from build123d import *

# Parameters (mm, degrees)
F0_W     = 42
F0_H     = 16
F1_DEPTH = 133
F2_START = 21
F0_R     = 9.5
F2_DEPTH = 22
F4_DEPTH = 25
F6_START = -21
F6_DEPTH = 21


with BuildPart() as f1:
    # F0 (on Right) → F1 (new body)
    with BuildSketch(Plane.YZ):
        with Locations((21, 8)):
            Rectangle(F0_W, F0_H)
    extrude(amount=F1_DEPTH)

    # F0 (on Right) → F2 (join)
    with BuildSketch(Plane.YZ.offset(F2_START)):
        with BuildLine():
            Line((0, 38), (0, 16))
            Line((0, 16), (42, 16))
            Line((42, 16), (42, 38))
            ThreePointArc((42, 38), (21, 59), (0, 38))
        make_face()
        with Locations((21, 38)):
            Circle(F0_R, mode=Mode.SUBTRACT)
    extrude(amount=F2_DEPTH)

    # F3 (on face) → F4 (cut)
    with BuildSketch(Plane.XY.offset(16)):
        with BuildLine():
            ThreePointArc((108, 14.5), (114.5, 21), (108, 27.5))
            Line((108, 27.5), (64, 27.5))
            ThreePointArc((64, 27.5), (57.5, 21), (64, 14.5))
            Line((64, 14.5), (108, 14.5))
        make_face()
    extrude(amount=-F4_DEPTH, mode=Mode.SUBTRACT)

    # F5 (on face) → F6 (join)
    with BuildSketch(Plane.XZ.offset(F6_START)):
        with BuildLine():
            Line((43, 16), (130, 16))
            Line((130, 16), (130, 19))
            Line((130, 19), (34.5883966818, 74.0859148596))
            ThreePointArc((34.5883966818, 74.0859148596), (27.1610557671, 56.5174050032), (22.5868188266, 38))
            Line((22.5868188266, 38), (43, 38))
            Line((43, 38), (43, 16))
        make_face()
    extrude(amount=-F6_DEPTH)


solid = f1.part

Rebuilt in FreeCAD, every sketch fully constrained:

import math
import FreeCAD as App
import Part
import Sketcher
from FreeCAD import Vector
Q = App.Units.Quantity

doc = App.newDocument("Part")
body = doc.addObject("PartDesign::Body", "Body")

sketch1 = doc.addObject("Sketcher::SketchObject", "Sketch")
body.addObject(sketch1)
sketch1.AttachmentSupport = (doc.YZ_Plane, [""])
sketch1.MapMode = "FlatFace"
sketch1.addGeometry(Part.LineSegment(Vector(0, 16, 0), Vector(0, 0, 0)), False)
sketch1.addGeometry(Part.LineSegment(Vector(0, 0, 0), Vector(42, 0, 0)), False)
sketch1.addGeometry(Part.LineSegment(Vector(42, 0, 0), Vector(42, 16, 0)), False)
sketch1.addGeometry(Part.LineSegment(Vector(42, 16, 0), Vector(0, 16, 0)), False)
sketch1.addConstraint(Sketcher.Constraint("Coincident", 0, 2, 1, 1))
sketch1.addConstraint(Sketcher.Constraint("Coincident", 1, 2, 2, 1))
sketch1.addConstraint(Sketcher.Constraint("Coincident", 2, 2, 3, 1))
sketch1.addConstraint(Sketcher.Constraint("Coincident", 3, 2, 0, 1))
sketch1.addConstraint(Sketcher.Constraint("Vertical", 0))
sketch1.addConstraint(Sketcher.Constraint("Horizontal", 1))
sketch1.addConstraint(Sketcher.Constraint("Vertical", 2))
sketch1.addConstraint(Sketcher.Constraint("Horizontal", 3))
sketch1.addConstraint(Sketcher.Constraint("Coincident", 0, 2, -1, 1))
sketch1.addConstraint(Sketcher.Constraint("DistanceX", 1, 1, 1, 2, 42.0))
sketch1.addConstraint(Sketcher.Constraint("DistanceY", 0, 2, 0, 1, 16.0))
pad1 = doc.addObject("PartDesign::Pad", "Pad")
body.addObject(pad1)
pad1.Profile = sketch1
pad1.Length = 133

sketch2 = doc.addObject("Sketcher::SketchObject", "Sketch001")
body.addObject(sketch2)
sketch2.AttachmentSupport = (doc.YZ_Plane, [""])
sketch2.MapMode = "FlatFace"
sketch2.AttachmentOffset = App.Placement(Vector(0, 0, 21), App.Rotation())
sketch2.addGeometry(Part.LineSegment(Vector(0, 38, 0), Vector(0, 16, 0)), False)
sketch2.addGeometry(Part.LineSegment(Vector(0, 16, 0), Vector(42, 16, 0)), False)
sketch2.addGeometry(Part.LineSegment(Vector(42, 16, 0), Vector(42, 38, 0)), False)
sketch2.addGeometry(Part.ArcOfCircle(Part.Circle(Vector(21, 38, 0), Vector(0, 0, 1), 21), math.radians(0), math.radians(180)), False)
sketch2.addGeometry(Part.Circle(Vector(21, 38, 0), Vector(0, 0, 1), 10), False)
sketch2.addConstraint(Sketcher.Constraint("Coincident", 0, 2, 1, 1))
sketch2.addConstraint(Sketcher.Constraint("Coincident", 1, 2, 2, 1))
sketch2.addConstraint(Sketcher.Constraint("Tangent", 2, 2, 3, 1))
sketch2.addConstraint(Sketcher.Constraint("Tangent", 3, 2, 0, 1))
sketch2.addConstraint(Sketcher.Constraint("Vertical", 0))
sketch2.addConstraint(Sketcher.Constraint("Horizontal", 1))
sketch2.addConstraint(Sketcher.Constraint("Vertical", 2))
sketch2.addConstraint(Sketcher.Constraint("Coincident", 4, 3, 3, 3))
sketch2.addConstraint(Sketcher.Constraint("PointOnObject", 0, 2, -2))
sketch2.addConstraint(Sketcher.Constraint("Diameter", 4, 19.0))
sketch2.addConstraint(Sketcher.Constraint("Radius", 3, 21.0))
sketch2.addConstraint(Sketcher.Constraint("DistanceY", 0, 2, 0, 1, 22.0))
sketch2.addConstraint(Sketcher.Constraint("DistanceY", -1, 1, 3, 3, 38.0))
pad2 = doc.addObject("PartDesign::Pad", "Pad001")
body.addObject(pad2)
pad2.Profile = sketch2
pad2.Length = 22

sketch3 = doc.addObject("Sketcher::SketchObject", "Sketch002")
body.addObject(sketch3)
sketch3.AttachmentSupport = (doc.XY_Plane, [""])
sketch3.MapMode = "FlatFace"
sketch3.AttachmentOffset = App.Placement(Vector(0, 0, 16), App.Rotation())
sketch3.addGeometry(Part.ArcOfCircle(Part.Circle(Vector(108, 21, 0), Vector(0, 0, 1), 6), math.radians(-90), math.radians(90)), False)
sketch3.addGeometry(Part.LineSegment(Vector(108, 28, 0), Vector(64, 28, 0)), False)
sketch3.addGeometry(Part.ArcOfCircle(Part.Circle(Vector(64, 21, 0), Vector(0, 0, 1), 6), math.radians(90), math.radians(270)), False)
sketch3.addGeometry(Part.LineSegment(Vector(64, 14, 0), Vector(108, 14, 0)), False)
sketch3.addConstraint(Sketcher.Constraint("Tangent", 0, 2, 1, 1))
sketch3.addConstraint(Sketcher.Constraint("Tangent", 1, 2, 2, 1))
sketch3.addConstraint(Sketcher.Constraint("Tangent", 2, 2, 3, 1))
sketch3.addConstraint(Sketcher.Constraint("Tangent", 3, 2, 0, 1))
sketch3.addConstraint(Sketcher.Constraint("Horizontal", 1))
sketch3.addConstraint(Sketcher.Constraint("Horizontal", 3))
sketch3.addConstraint(Sketcher.Constraint("Radius", 0, 6.5))
sketch3.addConstraint(Sketcher.Constraint("DistanceX", 1, 2, 1, 1, 44.0))
sketch3.addConstraint(Sketcher.Constraint("DistanceX", -1, 1, 0, 3, 108.0))
sketch3.addConstraint(Sketcher.Constraint("DistanceY", -1, 1, 0, 3, 21.0))
pocket1 = doc.addObject("PartDesign::Pocket", "Pocket")
body.addObject(pocket1)
pocket1.Profile = sketch3
pocket1.Length = 25

sketch4 = doc.addObject("Sketcher::SketchObject", "Sketch003")
body.addObject(sketch4)
sketch4.AttachmentSupport = (doc.XZ_Plane, [""])
sketch4.MapMode = "FlatFace"
sketch4.AttachmentOffset = App.Placement(Vector(0, 0, -21), App.Rotation())
sketch4.addGeometry(Part.LineSegment(Vector(43, 16, 0), Vector(130, 16, 0)), False)
sketch4.addGeometry(Part.LineSegment(Vector(130, 16, 0), Vector(130, 19, 0)), False)
sketch4.addGeometry(Part.LineSegment(Vector(130, 19, 0), Vector(34.6, 74.1, 0)), False)
sketch4.addGeometry(Part.ArcOfCircle(Part.Circle(Vector(142, 18.3, 0), Vector(0, 0, 1), 121), math.radians(152.56), math.radians(170.65)), False)
sketch4.addGeometry(Part.LineSegment(Vector(22.6, 38, 0), Vector(43, 38, 0)), False)
sketch4.addGeometry(Part.LineSegment(Vector(43, 38, 0), Vector(43, 16, 0)), False)
sketch4.addConstraint(Sketcher.Constraint("Coincident", 0, 2, 1, 1))
sketch4.addConstraint(Sketcher.Constraint("Coincident", 1, 2, 2, 1))
sketch4.addConstraint(Sketcher.Constraint("Coincident", 2, 2, 3, 1))
sketch4.addConstraint(Sketcher.Constraint("Coincident", 3, 2, 4, 1))
sketch4.addConstraint(Sketcher.Constraint("Coincident", 4, 2, 5, 1))
sketch4.addConstraint(Sketcher.Constraint("Coincident", 5, 2, 0, 1))
sketch4.addConstraint(Sketcher.Constraint("Horizontal", 0))
sketch4.addConstraint(Sketcher.Constraint("Vertical", 1))
sketch4.addConstraint(Sketcher.Constraint("Horizontal", 4))
sketch4.addConstraint(Sketcher.Constraint("Vertical", 5))
sketch4.addConstraint(Sketcher.Constraint("Radius", 3, 121.0))
sketch4.addConstraint(Sketcher.Constraint("DistanceX", 0, 1, 0, 2, 87.0))
sketch4.addConstraint(Sketcher.Constraint("DistanceY", 1, 1, 1, 2, 3.0))
sketch4.addConstraint(Sketcher.Constraint("DistanceY", 5, 2, 5, 1, 22.0))
sketch4.addConstraint(Sketcher.Constraint("Angle", 2, Q("150 deg")))
sketch4.addConstraint(Sketcher.Constraint("DistanceX", -1, 1, 0, 2, 130.0))
sketch4.addConstraint(Sketcher.Constraint("DistanceY", -1, 1, 0, 2, 16.0))
sketch4.addConstraint(Sketcher.Constraint("DistanceX", 4, 1, 4, 2, 20.413181))
sketch4.addConstraint(Sketcher.Constraint("Distance", 2, 110.17183))
pad3 = doc.addObject("PartDesign::Pad", "Pad002")
body.addObject(pad3)
pad3.Profile = sketch4
pad3.Length = 21
pad3.Reversed = True

doc.recompute()
